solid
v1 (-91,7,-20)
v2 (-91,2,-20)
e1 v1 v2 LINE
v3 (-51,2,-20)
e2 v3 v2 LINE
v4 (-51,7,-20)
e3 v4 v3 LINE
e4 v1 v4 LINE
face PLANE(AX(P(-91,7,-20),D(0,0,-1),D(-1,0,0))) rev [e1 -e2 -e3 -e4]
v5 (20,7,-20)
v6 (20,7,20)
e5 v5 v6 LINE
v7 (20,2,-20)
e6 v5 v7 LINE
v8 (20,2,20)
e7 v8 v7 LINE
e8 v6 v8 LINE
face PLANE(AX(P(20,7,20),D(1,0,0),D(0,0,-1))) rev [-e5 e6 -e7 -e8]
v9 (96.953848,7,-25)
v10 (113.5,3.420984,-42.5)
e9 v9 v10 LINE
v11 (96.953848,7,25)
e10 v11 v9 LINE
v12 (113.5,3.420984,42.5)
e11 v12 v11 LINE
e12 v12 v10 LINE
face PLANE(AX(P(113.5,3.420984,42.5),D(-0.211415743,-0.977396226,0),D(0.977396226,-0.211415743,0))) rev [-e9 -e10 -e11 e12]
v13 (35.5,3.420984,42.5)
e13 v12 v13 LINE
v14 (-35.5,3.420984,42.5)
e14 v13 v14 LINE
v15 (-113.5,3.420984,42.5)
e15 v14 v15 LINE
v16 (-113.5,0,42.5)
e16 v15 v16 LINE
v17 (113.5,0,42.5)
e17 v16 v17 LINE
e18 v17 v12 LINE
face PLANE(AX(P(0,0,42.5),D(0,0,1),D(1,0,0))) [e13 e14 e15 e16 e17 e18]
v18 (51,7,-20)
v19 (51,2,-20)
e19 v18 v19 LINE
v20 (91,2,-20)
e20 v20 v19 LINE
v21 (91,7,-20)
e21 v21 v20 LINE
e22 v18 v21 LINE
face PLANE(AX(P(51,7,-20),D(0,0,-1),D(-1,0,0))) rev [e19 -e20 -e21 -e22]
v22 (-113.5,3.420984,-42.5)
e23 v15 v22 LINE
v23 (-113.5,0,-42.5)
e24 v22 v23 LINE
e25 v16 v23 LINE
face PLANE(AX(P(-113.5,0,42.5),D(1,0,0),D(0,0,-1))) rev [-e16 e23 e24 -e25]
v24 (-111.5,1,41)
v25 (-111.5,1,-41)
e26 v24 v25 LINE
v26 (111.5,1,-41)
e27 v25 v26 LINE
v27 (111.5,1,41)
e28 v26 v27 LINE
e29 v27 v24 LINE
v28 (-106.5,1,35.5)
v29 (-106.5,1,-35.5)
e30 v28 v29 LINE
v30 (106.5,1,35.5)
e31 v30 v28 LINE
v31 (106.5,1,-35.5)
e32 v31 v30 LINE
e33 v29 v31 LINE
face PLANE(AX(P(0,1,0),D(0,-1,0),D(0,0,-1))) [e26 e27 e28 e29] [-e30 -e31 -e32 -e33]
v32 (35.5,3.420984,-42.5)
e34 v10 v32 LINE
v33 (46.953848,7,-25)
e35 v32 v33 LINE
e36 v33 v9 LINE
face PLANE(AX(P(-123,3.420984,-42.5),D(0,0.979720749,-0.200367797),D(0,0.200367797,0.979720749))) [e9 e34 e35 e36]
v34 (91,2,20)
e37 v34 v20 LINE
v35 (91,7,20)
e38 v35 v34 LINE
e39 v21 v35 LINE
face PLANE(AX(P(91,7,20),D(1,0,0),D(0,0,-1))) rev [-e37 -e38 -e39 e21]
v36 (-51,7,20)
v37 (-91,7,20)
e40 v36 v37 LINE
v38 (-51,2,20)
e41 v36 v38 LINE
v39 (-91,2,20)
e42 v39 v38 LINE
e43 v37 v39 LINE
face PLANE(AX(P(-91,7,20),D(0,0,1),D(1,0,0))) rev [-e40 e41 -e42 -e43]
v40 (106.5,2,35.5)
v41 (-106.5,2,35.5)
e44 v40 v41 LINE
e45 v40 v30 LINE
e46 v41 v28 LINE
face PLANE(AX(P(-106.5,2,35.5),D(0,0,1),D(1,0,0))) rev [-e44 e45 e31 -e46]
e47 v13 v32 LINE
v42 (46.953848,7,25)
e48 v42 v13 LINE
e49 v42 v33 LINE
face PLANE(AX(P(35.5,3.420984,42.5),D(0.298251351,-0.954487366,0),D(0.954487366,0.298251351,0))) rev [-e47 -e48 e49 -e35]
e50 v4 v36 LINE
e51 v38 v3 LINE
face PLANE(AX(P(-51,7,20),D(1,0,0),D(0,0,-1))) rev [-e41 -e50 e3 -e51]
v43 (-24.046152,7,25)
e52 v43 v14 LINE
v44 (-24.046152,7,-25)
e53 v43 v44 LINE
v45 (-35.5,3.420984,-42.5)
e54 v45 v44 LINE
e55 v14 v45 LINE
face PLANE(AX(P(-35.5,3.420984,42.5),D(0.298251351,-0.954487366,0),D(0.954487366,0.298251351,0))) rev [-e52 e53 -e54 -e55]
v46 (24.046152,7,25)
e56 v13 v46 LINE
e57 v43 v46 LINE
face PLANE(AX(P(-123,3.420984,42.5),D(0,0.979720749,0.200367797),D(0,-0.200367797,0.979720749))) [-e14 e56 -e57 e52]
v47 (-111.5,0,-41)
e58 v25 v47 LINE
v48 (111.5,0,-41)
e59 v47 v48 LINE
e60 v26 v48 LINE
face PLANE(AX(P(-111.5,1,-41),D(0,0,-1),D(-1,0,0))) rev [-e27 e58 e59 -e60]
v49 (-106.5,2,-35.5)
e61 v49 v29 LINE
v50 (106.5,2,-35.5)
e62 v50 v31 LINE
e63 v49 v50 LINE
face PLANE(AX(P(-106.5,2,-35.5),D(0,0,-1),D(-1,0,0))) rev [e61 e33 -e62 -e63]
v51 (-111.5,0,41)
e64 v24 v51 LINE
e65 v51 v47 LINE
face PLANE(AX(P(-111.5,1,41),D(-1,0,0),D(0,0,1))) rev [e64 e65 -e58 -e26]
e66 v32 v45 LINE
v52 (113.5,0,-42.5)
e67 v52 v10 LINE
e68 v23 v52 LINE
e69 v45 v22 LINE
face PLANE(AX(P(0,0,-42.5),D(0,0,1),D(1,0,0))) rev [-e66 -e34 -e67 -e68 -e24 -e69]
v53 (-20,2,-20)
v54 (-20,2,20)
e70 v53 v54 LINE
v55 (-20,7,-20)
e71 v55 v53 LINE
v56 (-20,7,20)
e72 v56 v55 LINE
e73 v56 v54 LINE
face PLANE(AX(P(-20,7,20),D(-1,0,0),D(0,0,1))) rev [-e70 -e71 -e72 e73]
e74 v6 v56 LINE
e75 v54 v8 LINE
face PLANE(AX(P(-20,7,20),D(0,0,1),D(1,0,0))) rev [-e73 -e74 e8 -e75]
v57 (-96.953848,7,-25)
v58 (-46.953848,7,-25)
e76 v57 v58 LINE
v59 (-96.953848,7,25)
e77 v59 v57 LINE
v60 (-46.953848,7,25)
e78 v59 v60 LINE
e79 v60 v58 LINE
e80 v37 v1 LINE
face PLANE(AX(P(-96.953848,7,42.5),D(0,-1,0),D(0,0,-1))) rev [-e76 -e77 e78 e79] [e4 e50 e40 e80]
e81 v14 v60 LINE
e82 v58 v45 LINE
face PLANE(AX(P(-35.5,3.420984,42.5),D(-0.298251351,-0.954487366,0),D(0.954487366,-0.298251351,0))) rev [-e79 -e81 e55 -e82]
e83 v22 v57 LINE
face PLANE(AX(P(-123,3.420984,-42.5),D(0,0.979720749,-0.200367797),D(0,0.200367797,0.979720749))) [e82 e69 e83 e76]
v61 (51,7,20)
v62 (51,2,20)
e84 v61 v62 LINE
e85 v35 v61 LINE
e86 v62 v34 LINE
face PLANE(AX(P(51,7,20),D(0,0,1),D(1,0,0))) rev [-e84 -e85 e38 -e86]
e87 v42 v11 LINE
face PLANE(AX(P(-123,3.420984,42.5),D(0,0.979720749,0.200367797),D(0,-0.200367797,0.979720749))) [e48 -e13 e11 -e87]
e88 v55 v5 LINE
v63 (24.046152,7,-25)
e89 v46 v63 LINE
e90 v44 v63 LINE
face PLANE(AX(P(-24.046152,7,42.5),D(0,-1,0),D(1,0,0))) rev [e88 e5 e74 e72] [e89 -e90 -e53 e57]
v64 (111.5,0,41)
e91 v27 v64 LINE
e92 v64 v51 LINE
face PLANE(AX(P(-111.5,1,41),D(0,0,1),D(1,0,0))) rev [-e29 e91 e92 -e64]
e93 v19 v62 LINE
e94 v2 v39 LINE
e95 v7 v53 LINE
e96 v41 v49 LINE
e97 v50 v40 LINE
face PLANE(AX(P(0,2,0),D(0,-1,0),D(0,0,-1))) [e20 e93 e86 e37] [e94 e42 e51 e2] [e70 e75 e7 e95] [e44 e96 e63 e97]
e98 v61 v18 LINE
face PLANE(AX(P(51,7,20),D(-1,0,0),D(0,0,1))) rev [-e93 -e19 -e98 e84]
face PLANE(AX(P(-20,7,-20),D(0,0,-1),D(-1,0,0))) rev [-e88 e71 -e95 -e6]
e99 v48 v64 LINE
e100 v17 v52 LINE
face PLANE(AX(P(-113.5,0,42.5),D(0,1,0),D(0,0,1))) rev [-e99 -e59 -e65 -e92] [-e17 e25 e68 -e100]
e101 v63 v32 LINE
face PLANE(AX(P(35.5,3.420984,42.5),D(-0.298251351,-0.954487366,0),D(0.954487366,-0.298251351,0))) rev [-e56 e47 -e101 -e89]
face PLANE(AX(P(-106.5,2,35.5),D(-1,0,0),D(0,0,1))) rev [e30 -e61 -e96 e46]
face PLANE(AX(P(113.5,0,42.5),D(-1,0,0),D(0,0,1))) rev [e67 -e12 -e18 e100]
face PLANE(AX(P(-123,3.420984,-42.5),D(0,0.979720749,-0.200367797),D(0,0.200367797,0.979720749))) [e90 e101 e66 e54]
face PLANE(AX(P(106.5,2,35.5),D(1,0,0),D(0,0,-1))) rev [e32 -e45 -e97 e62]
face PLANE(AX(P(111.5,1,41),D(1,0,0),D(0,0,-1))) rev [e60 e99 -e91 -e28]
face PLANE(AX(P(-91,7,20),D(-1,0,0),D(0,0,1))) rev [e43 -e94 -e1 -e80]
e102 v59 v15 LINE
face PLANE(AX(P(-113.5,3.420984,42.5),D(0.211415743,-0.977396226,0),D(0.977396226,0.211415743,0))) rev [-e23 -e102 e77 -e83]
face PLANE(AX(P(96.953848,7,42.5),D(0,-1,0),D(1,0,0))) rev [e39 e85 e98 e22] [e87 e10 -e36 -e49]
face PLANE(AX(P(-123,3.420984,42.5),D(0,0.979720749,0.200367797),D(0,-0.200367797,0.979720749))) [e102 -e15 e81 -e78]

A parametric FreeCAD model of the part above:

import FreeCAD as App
import Part
import Sketcher


def add_polygon(sketch, points):
    """Adds a closed chain of lines whose ends are joined by coincident constraints."""
    first, n = sketch.GeometryCount, len(points)
    for a, b in zip(points, points[1:] + points[:1]):
        sketch.addGeometry(Part.LineSegment(App.Vector(*a, 0), App.Vector(*b, 0)), False)
    for i in range(n):
        sketch.addConstraint(Sketcher.Constraint("Coincident", first + i, 2, first + (i + 1) % n, 1))

doc = App.newDocument("Part")
body = doc.addObject("PartDesign::Body", "Body")

# Sketch on XY plane
sketch1 = body.newObject("Sketcher::SketchObject", "Sketch")
sketch1.AttachmentSupport = (doc.getObject("XY_Plane"), [""])
sketch1.MapMode = "FlatFace"
add_polygon(sketch1, [(-113.5, 3.420984), (-113.5, 0), (113.5, 0), (113.5, 3.420984), (96.953848, 7), (46.953848, 7), (35.5, 3.420984), (24.046152, 7), (-24.046152, 7), (-35.5, 3.420984), (-46.953848, 7), (-96.953848, 7)])  # lines 0-11
sketch1.addConstraint(Sketcher.Constraint("Vertical", 0))
sketch1.addConstraint(Sketcher.Constraint("Horizontal", 1))
sketch1.addConstraint(Sketcher.Constraint("Vertical", 2))
sketch1.addConstraint(Sketcher.Constraint("Horizontal", 4))
sketch1.addConstraint(Sketcher.Constraint("Horizontal", 7))
sketch1.addConstraint(Sketcher.Constraint("Horizontal", 10))
sketch1.addConstraint(Sketcher.Constraint("Symmetric", 0, 2, 1, 2, -1, 1))
sketch1.addConstraint(Sketcher.Constraint("Symmetric", 5, 2, 8, 2, -2))
sketch1.addConstraint(Sketcher.Constraint("Symmetric", 4, 2, 9, 2, -2))
sketch1.addConstraint(Sketcher.Constraint("Parallel", 5, 8))
sketch1.addConstraint(Sketcher.Constraint("Parallel", 6, 9))
sketch1.addConstraint(Sketcher.Constraint("Horizontal", 2, 2, 5, 2))
sketch1.addConstraint(Sketcher.Constraint("Horizontal", 4, 2, 6, 2))
sketch1.addConstraint(Sketcher.Constraint("Horizontal", 8, 2, 11, 2))
sketch1.addConstraint(Sketcher.Constraint("Equal", 4, 10))
sketch1.addConstraint(Sketcher.Constraint("DistanceX", 1, 1, 1, 2, 227.0))
sketch1.addConstraint(Sketcher.Constraint("DistanceX", 4, 2, 4, 1, 50.0))
sketch1.addConstraint(Sketcher.Constraint("Distance", 5, 12.0))
sketch1.addConstraint(Sketcher.Constraint("DistanceY", -1, 1, 3, 2, 7.0))
sketch1.addConstraint(Sketcher.Constraint("DistanceX", 5, 2, 2, 2, 78.0))
sketch1.addConstraint(Sketcher.Constraint("DistanceX", 7, 2, 7, 1, 48.092303))
pad1 = body.newObject("PartDesign::Pad", "Pad")
pad1.Profile = sketch1
pad1.Length = 85
pad1.Midplane = True

# Sketch on YZ plane
sketch2 = body.newObject("Sketcher::SketchObject", "Sketch001")
sketch2.AttachmentSupport = (doc.getObject("YZ_Plane"), [""])
sketch2.MapMode = "FlatFace"
add_polygon(sketch2, [(32.249, 67.749), (-25.249, 67.749), (-25.249, -67.749), (32.249, -67.749)])  # lines 0-3
add_polygon(sketch2, [(3.420984, -42.5), (0, -42.5), (0, 42.5), (3.420984, 42.5), (7, 25), (7, -25)])  # lines 4-9
sketch2.addConstraint(Sketcher.Constraint("Horizontal", 0))
sketch2.addConstraint(Sketcher.Constraint("Vertical", 1))
sketch2.addConstraint(Sketcher.Constraint("Horizontal", 2))
sketch2.addConstraint(Sketcher.Constraint("Vertical", 3))
sketch2.addConstraint(Sketcher.Constraint("Horizontal", 4))
sketch2.addConstraint(Sketcher.Constraint("Vertical", 5))
sketch2.addConstraint(Sketcher.Constraint("Horizontal", 6))
sketch2.addConstraint(Sketcher.Constraint("Vertical", 8))
sketch2.addConstraint(Sketcher.Constraint("Symmetric", 4, 2, 5, 2, -1, 1))
sketch2.addConstraint(Sketcher.Constraint("Vertical", 6, 2, 9, 2))
sketch2.addConstraint(Sketcher.Constraint("Equal", 7, 9))
sketch2.addConstraint(Sketcher.Constraint("DistanceY", 5, 1, 5, 2, 85.0))
sketch2.addConstraint(Sketcher.Constraint("DistanceY", 8, 2, 8, 1, 50.0))
sketch2.addConstraint(Sketcher.Constraint("DistanceX", -1, 1, 7, 2, 7.0))
sketch2.addConstraint(Sketcher.Constraint("DistanceX", 0, 2, 0, 1, 57.498))
sketch2.addConstraint(Sketcher.Constraint("DistanceY", 1, 2, 1, 1, 135.498))
sketch2.addConstraint(Sketcher.Constraint("DistanceX", 0, 2, -1, 1, 25.249))
sketch2.addConstraint(Sketcher.Constraint("DistanceY", -1, 1, 0, 2, 67.749))
sketch2.addConstraint(Sketcher.Constraint("DistanceX", 4, 2, 4, 1, 3.420984))
pocket1 = body.newObject("PartDesign::Pocket", "Pocket")
pocket1.Profile = sketch2
pocket1.Length = 246
pocket1.Midplane = True

# Sketch on XZ plane
sketch3 = body.newObject("Sketcher::SketchObject", "Sketch002")
sketch3.AttachmentSupport = (doc.getObject("XZ_Plane"), [""])
sketch3.MapMode = "FlatFace"
add_polygon(sketch3, [(51, 20), (51, -20), (91, -20), (91, 20)])  # lines 0-3
add_polygon(sketch3, [(-20, 20), (-20, -20), (20, -20), (20, 20)])  # lines 4-7
add_polygon(sketch3, [(-91, 20), (-91, -20), (-51, -20), (-51, 20)])  # lines 8-11
sketch3.addConstraint(Sketcher.Constraint("Vertical", 0))
sketch3.addConstraint(Sketcher.Constraint("Horizontal", 1))
sketch3.addConstraint(Sketcher.Constraint("Vertical", 2))
sketch3.addConstraint(Sketcher.Constraint("Horizontal", 3))
sketch3.addConstraint(Sketcher.Constraint("Vertical", 4))
sketch3.addConstraint(Sketcher.Constraint("Horizontal", 5))
sketch3.addConstraint(Sketcher.Constraint("Vertical", 6))
sketch3.addConstraint(Sketcher.Constraint("Horizontal", 7))
sketch3.addConstraint(Sketcher.Constraint("Vertical", 8))
sketch3.addConstraint(Sketcher.Constraint("Horizontal", 9))
sketch3.addConstraint(Sketcher.Constraint("Vertical", 10))
sketch3.addConstraint(Sketcher.Constraint("Horizontal", 11))
sketch3.addConstraint(Sketcher.Constraint("Symmetric", 4, 2, 6, 2, -1, 1))
sketch3.addConstraint(Sketcher.Constraint("Symmetric", 2, 2, 8, 2, -1, 1))
sketch3.addConstraint(Sketcher.Constraint("Symmetric", 0, 2, 10, 2, -1, 1))
sketch3.addConstraint(Sketcher.Constraint("Horizontal", 1, 2, 4, 2))
sketch3.addConstraint(Sketcher.Constraint("Horizontal", 3, 2, 6, 2))
sketch3.addConstraint(Sketcher.Constraint("Equal", 3, 5))
sketch3.addConstraint(Sketcher.Constraint("Equal", 11, 0))
sketch3.addConstraint(Sketcher.Constraint("DistanceX", 1, 1, 1, 2, 40.0))
sketch3.addConstraint(Sketcher.Constraint("DistanceX", -1, 1, 0, 2, 51.0))
pocket2 = body.newObject("PartDesign::Pocket", "Pocket001")
pocket2.Profile = sketch3
pocket2.Type = "ThroughAll"

# Sketch on XZ plane
sketch4 = body.newObject("Sketcher::SketchObject", "Sketch003")
sketch4.AttachmentSupport = (doc.getObject("XZ_Plane"), [""])
sketch4.MapMode = "FlatFace"
add_polygon(sketch4, [(-111.5, 41), (-111.5, -41), (111.5, -41), (111.5, 41)])  # lines 0-3
sketch4.addConstraint(Sketcher.Constraint("Vertical", 0))
sketch4.addConstraint(Sketcher.Constraint("Horizontal", 1))
sketch4.addConstraint(Sketcher.Constraint("Vertical", 2))
sketch4.addConstraint(Sketcher.Constraint("Horizontal", 3))
sketch4.addConstraint(Sketcher.Constraint("Symmetric", 0, 2, 2, 2, -1, 1))
sketch4.addConstraint(Sketcher.Constraint("DistanceX", 1, 1, 1, 2, 223.0))
sketch4.addConstraint(Sketcher.Constraint("DistanceY", 0, 2, 0, 1, 82.0))
pocket3 = body.newObject("PartDesign::Pocket", "Pocket002")
pocket3.Profile = sketch4
pocket3.Length = 1

# Sketch on XZ plane
sketch5 = body.newObject("Sketcher::SketchObject", "Sketch004")
sketch5.AttachmentSupport = (doc.getObject("XZ_Plane"), [""])
sketch5.MapMode = "FlatFace"
sketch5.AttachmentOffset = App.Placement(App.Vector(0, 0, -1), App.Rotation())
add_polygon(sketch5, [(-106.5, 35.5), (-106.5, -35.5), (106.5, -35.5), (106.5, 35.5)])  # lines 0-3
sketch5.addConstraint(Sketcher.Constraint("Vertical", 0))
sketch5.addConstraint(Sketcher.Constraint("Horizontal", 1))
sketch5.addConstraint(Sketcher.Constraint("Vertical", 2))
sketch5.addConstraint(Sketcher.Constraint("Horizontal", 3))
sketch5.addConstraint(Sketcher.Constraint("Symmetric", 0, 2, 2, 2, -1, 1))
sketch5.addConstraint(Sketcher.Constraint("DistanceX", 1, 1, 1, 2, 213.0))
sketch5.addConstraint(Sketcher.Constraint("DistanceY", 0, 2, 0, 1, 71.0))
pocket4 = body.newObject("PartDesign::Pocket", "Pocket003")
pocket4.Profile = sketch5
pocket4.Length = 1

doc.recompute()
